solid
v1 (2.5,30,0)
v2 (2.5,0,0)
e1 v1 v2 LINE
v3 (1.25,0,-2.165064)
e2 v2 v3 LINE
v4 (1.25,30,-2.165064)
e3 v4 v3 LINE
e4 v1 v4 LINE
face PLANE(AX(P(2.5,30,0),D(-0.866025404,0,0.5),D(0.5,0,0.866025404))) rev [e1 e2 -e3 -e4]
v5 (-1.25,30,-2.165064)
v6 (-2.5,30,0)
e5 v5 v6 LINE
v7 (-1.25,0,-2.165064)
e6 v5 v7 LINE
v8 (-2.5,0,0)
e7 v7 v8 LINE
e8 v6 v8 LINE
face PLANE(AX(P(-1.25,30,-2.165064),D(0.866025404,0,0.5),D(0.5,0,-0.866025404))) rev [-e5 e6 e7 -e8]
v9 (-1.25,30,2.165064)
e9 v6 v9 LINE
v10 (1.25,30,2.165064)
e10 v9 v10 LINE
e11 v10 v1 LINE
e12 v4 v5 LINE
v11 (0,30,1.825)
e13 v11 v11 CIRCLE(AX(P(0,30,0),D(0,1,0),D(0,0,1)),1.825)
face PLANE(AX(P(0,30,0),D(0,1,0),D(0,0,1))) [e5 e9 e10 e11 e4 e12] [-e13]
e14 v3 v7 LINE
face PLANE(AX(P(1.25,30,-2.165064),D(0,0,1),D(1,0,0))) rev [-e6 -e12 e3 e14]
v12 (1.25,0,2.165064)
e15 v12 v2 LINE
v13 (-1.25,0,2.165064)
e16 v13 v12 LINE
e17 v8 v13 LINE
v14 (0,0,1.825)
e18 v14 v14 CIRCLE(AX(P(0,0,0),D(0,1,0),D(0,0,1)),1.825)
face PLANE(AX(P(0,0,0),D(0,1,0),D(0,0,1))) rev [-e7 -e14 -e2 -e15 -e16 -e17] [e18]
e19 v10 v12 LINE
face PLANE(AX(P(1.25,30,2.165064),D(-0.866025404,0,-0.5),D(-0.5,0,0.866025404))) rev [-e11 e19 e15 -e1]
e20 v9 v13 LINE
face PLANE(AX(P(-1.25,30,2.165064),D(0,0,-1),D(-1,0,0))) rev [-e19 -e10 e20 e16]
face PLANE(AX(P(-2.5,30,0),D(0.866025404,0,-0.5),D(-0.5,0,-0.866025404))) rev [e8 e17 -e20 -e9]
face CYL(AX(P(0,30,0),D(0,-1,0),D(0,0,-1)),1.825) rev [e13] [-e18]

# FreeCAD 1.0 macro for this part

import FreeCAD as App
import Part
import Sketcher
Q = App.Units.Quantity

doc = App.newDocument("Part")
body = doc.addObject("PartDesign::Body", "Body")

# Sketch on XZ plane
sketch1 = body.newObject("Sketcher::SketchObject", "Sketch")
sketch1.AttachmentSupport = (doc.getObject("XZ_Plane"), [""])
sketch1.MapMode = "FlatFace"
sketch1.addGeometry([
    Part.LineSegment(App.Vector(2.5, 0, 0), App.Vector(1.25, -2.165064, 0)),  # 0
    Part.LineSegment(App.Vector(1.25, -2.165064, 0), App.Vector(-1.25, -2.165064, 0)),  # 1
    Part.LineSegment(App.Vector(-1.25, -2.165064, 0), App.Vector(-2.5, 0, 0)),  # 2
    Part.LineSegment(App.Vector(-2.5, 0, 0), App.Vector(-1.25, 2.165064, 0)),  # 3
    Part.LineSegment(App.Vector(-1.25, 2.165064, 0), App.Vector(1.25, 2.165064, 0)),  # 4
    Part.LineSegment(App.Vector(1.25, 2.165064, 0), App.Vector(2.5, 0, 0)),  # 5
    Part.Circle(App.Vector(0, 0, 0), App.Vector(0, 0, 1), 1.825),  # 6
], False)
sketch1.addConstraint([
    Sketcher.Constraint("Coincident", 0, 2, 1, 1),
    Sketcher.Constraint("Coincident", 1, 2, 2, 1),
    Sketcher.Constraint("Coincident", 2, 2, 3, 1),
    Sketcher.Constraint("Coincident", 3, 2, 4, 1),
    Sketcher.Constraint("Coincident", 4, 2, 5, 1),
    Sketcher.Constraint("Coincident", 5, 2, 0, 1),
    Sketcher.Constraint("Horizontal", 1),
    Sketcher.Constraint("Horizontal", 4),
    Sketcher.Constraint("Coincident", 6, 3, -1, 1),
    Sketcher.Constraint("Symmetric", 0, 2, 3, 2, -1, 1),
    Sketcher.Constraint("Symmetric", 2, 2, 5, 2, -1, 1),
    Sketcher.Constraint("PointOnObject", 2, 2, -1),
    Sketcher.Constraint("Parallel", 2, 5),
    Sketcher.Constraint("Vertical", 1, 2, 3, 2),
    Sketcher.Constraint("Diameter", 6, Q("3.65 mm")),
    Sketcher.Constraint("Angle", 0, Q("-120 deg")),
    Sketcher.Constraint("DistanceX", 1, 2, 1, 1, Q("2.5 mm")),
    Sketcher.Constraint("Distance", 0, Q("2.5 mm")),
])
pad1 = body.newObject("PartDesign::Pad", "Pad")
pad1.Profile = sketch1
pad1.Length = 30
pad1.Reversed = True

doc.recompute()
